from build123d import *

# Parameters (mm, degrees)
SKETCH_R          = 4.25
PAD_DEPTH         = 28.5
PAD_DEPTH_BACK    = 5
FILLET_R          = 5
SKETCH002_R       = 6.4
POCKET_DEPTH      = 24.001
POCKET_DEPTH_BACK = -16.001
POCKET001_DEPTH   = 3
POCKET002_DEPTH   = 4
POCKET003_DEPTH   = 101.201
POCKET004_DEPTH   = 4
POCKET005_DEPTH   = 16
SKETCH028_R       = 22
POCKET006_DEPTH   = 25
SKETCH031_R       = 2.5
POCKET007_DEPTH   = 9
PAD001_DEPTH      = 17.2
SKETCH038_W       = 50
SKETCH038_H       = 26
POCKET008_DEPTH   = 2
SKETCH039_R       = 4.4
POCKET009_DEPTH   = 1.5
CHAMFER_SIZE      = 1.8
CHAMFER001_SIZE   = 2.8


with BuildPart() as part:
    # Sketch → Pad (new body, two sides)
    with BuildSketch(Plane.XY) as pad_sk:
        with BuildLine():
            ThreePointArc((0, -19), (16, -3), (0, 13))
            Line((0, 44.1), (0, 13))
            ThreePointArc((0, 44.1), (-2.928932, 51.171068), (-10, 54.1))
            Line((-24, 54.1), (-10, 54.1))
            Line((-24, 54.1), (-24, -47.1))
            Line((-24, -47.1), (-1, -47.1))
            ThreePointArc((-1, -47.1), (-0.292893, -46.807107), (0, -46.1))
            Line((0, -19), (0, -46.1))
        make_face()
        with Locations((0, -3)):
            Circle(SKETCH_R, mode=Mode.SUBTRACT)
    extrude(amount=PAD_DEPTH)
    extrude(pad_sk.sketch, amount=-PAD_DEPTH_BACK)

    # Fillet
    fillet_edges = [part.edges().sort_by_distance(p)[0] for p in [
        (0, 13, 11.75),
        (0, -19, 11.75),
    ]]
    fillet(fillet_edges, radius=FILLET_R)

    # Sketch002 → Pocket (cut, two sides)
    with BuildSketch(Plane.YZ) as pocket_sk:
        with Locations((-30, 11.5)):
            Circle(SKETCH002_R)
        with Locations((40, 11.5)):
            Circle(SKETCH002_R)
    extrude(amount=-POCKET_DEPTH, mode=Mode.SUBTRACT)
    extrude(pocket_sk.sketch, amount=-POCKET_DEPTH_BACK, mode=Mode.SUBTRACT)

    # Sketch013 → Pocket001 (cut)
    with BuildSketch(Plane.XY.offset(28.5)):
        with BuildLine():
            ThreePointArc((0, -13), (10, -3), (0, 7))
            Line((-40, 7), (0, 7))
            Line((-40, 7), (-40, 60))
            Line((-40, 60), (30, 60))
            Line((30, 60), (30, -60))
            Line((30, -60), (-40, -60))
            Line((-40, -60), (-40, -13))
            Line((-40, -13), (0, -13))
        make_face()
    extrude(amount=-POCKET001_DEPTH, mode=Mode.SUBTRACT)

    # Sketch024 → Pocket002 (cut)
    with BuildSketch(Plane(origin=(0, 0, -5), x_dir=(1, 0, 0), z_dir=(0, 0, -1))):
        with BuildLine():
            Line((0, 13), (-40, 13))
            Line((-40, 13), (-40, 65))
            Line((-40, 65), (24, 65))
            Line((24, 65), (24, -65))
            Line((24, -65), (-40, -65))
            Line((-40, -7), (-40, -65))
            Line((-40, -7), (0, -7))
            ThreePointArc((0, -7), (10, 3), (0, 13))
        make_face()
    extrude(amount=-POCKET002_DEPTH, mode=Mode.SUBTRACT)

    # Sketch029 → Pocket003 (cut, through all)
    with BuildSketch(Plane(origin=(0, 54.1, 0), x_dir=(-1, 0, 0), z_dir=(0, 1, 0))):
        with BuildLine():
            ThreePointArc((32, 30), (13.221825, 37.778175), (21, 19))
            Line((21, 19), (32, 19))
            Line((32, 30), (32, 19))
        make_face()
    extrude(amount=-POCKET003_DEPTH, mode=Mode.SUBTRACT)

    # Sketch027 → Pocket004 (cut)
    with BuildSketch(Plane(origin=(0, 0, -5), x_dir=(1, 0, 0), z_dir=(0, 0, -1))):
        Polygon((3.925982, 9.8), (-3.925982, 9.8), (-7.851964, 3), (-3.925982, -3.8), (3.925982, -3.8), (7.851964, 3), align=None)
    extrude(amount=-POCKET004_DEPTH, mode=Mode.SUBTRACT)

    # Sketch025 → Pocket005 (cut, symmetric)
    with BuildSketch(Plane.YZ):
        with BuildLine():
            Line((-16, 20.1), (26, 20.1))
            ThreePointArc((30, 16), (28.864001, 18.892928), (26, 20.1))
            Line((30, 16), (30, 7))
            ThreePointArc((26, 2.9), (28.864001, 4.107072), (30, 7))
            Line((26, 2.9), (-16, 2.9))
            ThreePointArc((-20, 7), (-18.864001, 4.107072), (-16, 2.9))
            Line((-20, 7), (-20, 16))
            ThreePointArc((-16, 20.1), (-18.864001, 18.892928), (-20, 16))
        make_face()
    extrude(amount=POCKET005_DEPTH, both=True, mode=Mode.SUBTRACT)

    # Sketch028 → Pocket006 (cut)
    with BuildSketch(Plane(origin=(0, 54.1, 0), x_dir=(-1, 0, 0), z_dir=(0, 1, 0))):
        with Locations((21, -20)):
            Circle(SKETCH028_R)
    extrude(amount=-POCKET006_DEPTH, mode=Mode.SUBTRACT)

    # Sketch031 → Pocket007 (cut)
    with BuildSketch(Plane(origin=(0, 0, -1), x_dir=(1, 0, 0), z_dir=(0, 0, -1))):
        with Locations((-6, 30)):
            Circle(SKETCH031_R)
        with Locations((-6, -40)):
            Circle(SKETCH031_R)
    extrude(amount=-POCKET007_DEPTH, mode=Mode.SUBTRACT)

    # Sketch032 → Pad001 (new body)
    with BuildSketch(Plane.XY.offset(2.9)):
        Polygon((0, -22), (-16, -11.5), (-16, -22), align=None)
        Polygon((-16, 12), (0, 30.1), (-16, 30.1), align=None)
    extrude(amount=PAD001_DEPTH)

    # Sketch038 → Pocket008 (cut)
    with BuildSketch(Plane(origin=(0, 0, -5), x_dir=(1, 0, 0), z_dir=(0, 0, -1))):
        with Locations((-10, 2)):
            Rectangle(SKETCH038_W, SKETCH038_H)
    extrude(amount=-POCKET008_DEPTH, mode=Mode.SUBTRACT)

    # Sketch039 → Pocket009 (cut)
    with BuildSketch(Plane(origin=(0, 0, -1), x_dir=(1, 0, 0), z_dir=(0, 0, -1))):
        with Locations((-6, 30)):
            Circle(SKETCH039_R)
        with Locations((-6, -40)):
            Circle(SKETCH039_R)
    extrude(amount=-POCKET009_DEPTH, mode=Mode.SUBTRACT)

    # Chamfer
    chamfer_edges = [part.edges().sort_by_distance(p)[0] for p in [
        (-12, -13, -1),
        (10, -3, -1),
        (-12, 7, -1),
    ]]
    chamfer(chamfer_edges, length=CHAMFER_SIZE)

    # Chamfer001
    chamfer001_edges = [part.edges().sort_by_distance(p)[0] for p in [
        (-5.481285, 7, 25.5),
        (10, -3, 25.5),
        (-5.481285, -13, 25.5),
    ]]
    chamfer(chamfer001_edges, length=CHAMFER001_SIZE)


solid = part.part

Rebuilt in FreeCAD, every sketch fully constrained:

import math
import FreeCAD as App
import Part
import Sketcher
Q = App.Units.Quantity


def edges_at(feature, points):
    """Names of the edges that pass closest to the given points."""
    edges = feature.Shape.Edges
    near = lambda p: min(range(len(edges)), key=lambda i: edges[i].distToShape(Part.Vertex(*p))[0])
    return sorted({f"Edge{near(p) + 1}" for p in points})


def add_polygon(sketch, points):
    """Adds a closed chain of lines whose ends are joined by coincident constraints."""
    first, n = sketch.GeometryCount, len(points)
    for a, b in zip(points, points[1:] + points[:1]):
        sketch.addGeometry(Part.LineSegment(App.Vector(*a, 0), App.Vector(*b, 0)), False)
    for i in range(n):
        sketch.addConstraint(Sketcher.Constraint("Coincident", first + i, 2, first + (i + 1) % n, 1))

doc = App.newDocument("Part")
body = doc.addObject("PartDesign::Body", "Body")

sketch1 = body.newObject("Sketcher::SketchObject", "Sketch")
sketch1.AttachmentSupport = (doc.getObject("XY_Plane"), [""])
sketch1.MapMode = "FlatFace"
sketch1.addGeometry([
    Part.ArcOfCircle(Part.Circle(App.Vector(0, -3, 0), App.Vector(0, 0, 1), 16), math.radians(-90), math.radians(90)),
    Part.LineSegment(App.Vector(0, 13, 0), App.Vector(0, 44.1, 0)),
    Part.ArcOfCircle(Part.Circle(App.Vector(-10, 44.1, 0), App.Vector(0, 0, 1), 10), math.radians(0), math.radians(90)),
    Part.LineSegment(App.Vector(-10, 54.1, 0), App.Vector(-24, 54.1, 0)),
    Part.LineSegment(App.Vector(-24, 54.1, 0), App.Vector(-24, -47.1, 0)),
    Part.LineSegment(App.Vector(-24, -47.1, 0), App.Vector(-1, -47.1, 0)),
    Part.ArcOfCircle(Part.Circle(App.Vector(-1, -46.1, 0), App.Vector(0, 0, 1), 1), math.radians(-90), math.radians(0)),
    Part.LineSegment(App.Vector(0, -46.1, 0), App.Vector(0, -19, 0)),
    Part.Circle(App.Vector(0, -3, 0), App.Vector(0, 0, 1), 4.2),
], False)
sketch1.addConstraint([
    Sketcher.Constraint("Coincident", 0, 2, 1, 1),
    Sketcher.Constraint("Tangent", 1, 2, 2, 1),
    Sketcher.Constraint("Tangent", 2, 2, 3, 1),
    Sketcher.Constraint("Coincident", 3, 2, 4, 1),
    Sketcher.Constraint("Coincident", 4, 2, 5, 1),
    Sketcher.Constraint("Tangent", 5, 2, 6, 1),
    Sketcher.Constraint("Tangent", 6, 2, 7, 1),
    Sketcher.Constraint("Coincident", 7, 2, 0, 1),
    Sketcher.Constraint("Vertical", 1),
    Sketcher.Constraint("Horizontal", 3),
    Sketcher.Constraint("Vertical", 4),
    Sketcher.Constraint("Horizontal", 5),
    Sketcher.Constraint("Vertical", 7),
    Sketcher.Constraint("Coincident", 8, 3, 0, 3),
    Sketcher.Constraint("PointOnObject", 0, 3, -2),
    Sketcher.Constraint("PointOnObject", 0, 2, -2),
    Sketcher.Constraint("PointOnObject", 6, 2, -2),
    Sketcher.Constraint("Radius", 0, Q("16 mm")),
    Sketcher.Constraint("Radius", 2, Q("9.999999 mm")),
    Sketcher.Constraint("Radius", 6, Q("0.999999 mm")),
    Sketcher.Constraint("Diameter", 8, Q("8.5 mm")),
    Sketcher.Constraint("DistanceX", 3, 2, 3, 1, Q("14 mm")),
    Sketcher.Constraint("DistanceY", 1, 1, 1, 2, Q("31.1 mm")),
    Sketcher.Constraint("DistanceY", 4, 2, 4, 1, Q("101.2 mm")),
    Sketcher.Constraint("DistanceY", 0, 3, -1, 1, Q("3 mm")),
])
pad1 = body.newObject("PartDesign::Pad", "Pad")
pad1.Profile = sketch1
pad1.Type = "TwoLengths"
pad1.Length = 28.5
pad1.Length2 = 5
doc.recompute()

fillet = body.newObject("PartDesign::Fillet", "Fillet")
fillet.Base = (pad1, edges_at(pad1, [(0, 13, 11.75), (0, -19, 11.75)]))
fillet.Radius = 5

sketch2 = body.newObject("Sketcher::SketchObject", "Sketch001")
sketch2.AttachmentSupport = (doc.getObject("YZ_Plane"), [""])
sketch2.MapMode = "FlatFace"
sketch2.addGeometry([
    Part.Circle(App.Vector(-30, 12, 0), App.Vector(0, 0, 1), 6),
    Part.Circle(App.Vector(40, 12, 0), App.Vector(0, 0, 1), 6),
], False)
sketch2.addConstraint([
    Sketcher.Constraint("Equal", 0, 1),
    Sketcher.Constraint("Horizontal", 0, 3, 1, 3),
    Sketcher.Constraint("Diameter", 0, Q("12.8 mm")),
    Sketcher.Constraint("DistanceX", 0, 3, -1, 1, Q("30 mm")),
    Sketcher.Constraint("DistanceX", -1, 1, 1, 3, Q("40 mm")),
    Sketcher.Constraint("DistanceY", -1, 1, 0, 3, Q("11.5 mm")),
])
pocket1 = body.newObject("PartDesign::Pocket", "Pocket")
pocket1.Profile = sketch2
pocket1.Type = "ThroughAll"
pocket1.Midplane = True

sketch3 = body.newObject("Sketcher::SketchObject", "Sketch002")
sketch3.AttachmentSupport = (doc.getObject("XY_Plane"), [""])
sketch3.MapMode = "FlatFace"
sketch3.AttachmentOffset = App.Placement(App.Vector(0, 0, 28.5), App.Rotation())
sketch3.addGeometry([
    Part.ArcOfCircle(Part.Circle(App.Vector(0, -3, 0), App.Vector(0, 0, 1), 10), math.radians(-90), math.radians(90)),
    Part.LineSegment(App.Vector(0, -13, 0), App.Vector(-40, -13, 0)),
    Part.LineSegment(App.Vector(-40, -13, 0), App.Vector(-40, -60, 0)),
    Part.LineSegment(App.Vector(-40, -60, 0), App.Vector(30, -60, 0)),
    Part.LineSegment(App.Vector(30, -60, 0), App.Vector(30, 60, 0)),
    Part.LineSegment(App.Vector(30, 60, 0), App.Vector(-40, 60, 0)),
    Part.LineSegment(App.Vector(-40, 60, 0), App.Vector(-40, 7, 0)),
    Part.LineSegment(App.Vector(-40, 7, 0), App.Vector(0, 7, 0)),
], False)
sketch3.addConstraint([
    Sketcher.Constraint("Tangent", 0, 1, 1, 1),
    Sketcher.Constraint("Coincident", 1, 2, 2, 1),
    Sketcher.Constraint("Coincident", 2, 2, 3, 1),
    Sketcher.Constraint("Coincident", 3, 2, 4, 1),
    Sketcher.Constraint("Coincident", 4, 2, 5, 1),
    Sketcher.Constraint("Coincident", 5, 2, 6, 1),
    Sketcher.Constraint("Coincident", 6, 2, 7, 1),
    Sketcher.Constraint("Tangent", 7, 2, 0, 2),
    Sketcher.Constraint("Horizontal", 1),
    Sketcher.Constraint("Vertical", 2),
    Sketcher.Constraint("Horizontal", 3),
    Sketcher.Constraint("Vertical", 4),
    Sketcher.Constraint("Horizontal", 5),
    Sketcher.Constraint("Vertical", 6),
    Sketcher.Constraint("Horizontal", 7),
    Sketcher.Constraint("Symmetric", 2, 2, 5, 2, -1),
    Sketcher.Constraint("PointOnObject", 0, 3, -2),
    Sketcher.Constraint("Radius", 0, Q("10 mm")),
    Sketcher.Constraint("DistanceX", 1, 2, 1, 1, Q("40 mm")),
    Sketcher.Constraint("DistanceX", 3, 1, 3, 2, Q("70 mm")),
    Sketcher.Constraint("DistanceY", 2, 2, 2, 1, Q("47 mm")),
    Sketcher.Constraint("DistanceY", 4, 1, 4, 2, Q("120 mm")),
])
pocket2 = body.newObject("PartDesign::Pocket", "Pocket001")
pocket2.Profile = sketch3
pocket2.Length = 3

sketch4 = body.newObject("Sketcher::SketchObject", "Sketch003")
sketch4.AttachmentSupport = (doc.getObject("XY_Plane"), [""])
sketch4.MapMode = "FlatFace"
sketch4.AttachmentOffset = App.Placement(App.Vector(0, 0, -5), App.Rotation())
sketch4.addGeometry([
    Part.LineSegment(App.Vector(-40, -13, 0), App.Vector(0, -13, 0)),
    Part.ArcOfCircle(Part.Circle(App.Vector(0, -3, 0), App.Vector(0, 0, 1), 10), math.radians(-90), math.radians(90)),
    Part.LineSegment(App.Vector(0, 7, 0), App.Vector(-40, 7, 0)),
    Part.LineSegment(App.Vector(-40, 7, 0), App.Vector(-40, 65, 0)),
    Part.LineSegment(App.Vector(-40, 65, 0), App.Vector(24, 65, 0)),
    Part.LineSegment(App.Vector(24, 65, 0), App.Vector(24, -65, 0)),
    Part.LineSegment(App.Vector(24, -65, 0), App.Vector(-40, -65, 0)),
    Part.LineSegment(App.Vector(-40, -65, 0), App.Vector(-40, -13, 0)),
], False)
sketch4.addConstraint([
    Sketcher.Constraint("Tangent", 0, 2, 1, 1),
    Sketcher.Constraint("Tangent", 1, 2, 2, 1),
    Sketcher.Constraint("Coincident", 2, 2, 3, 1),
    Sketcher.Constraint("Coincident", 3, 2, 4, 1),
    Sketcher.Constraint("Coincident", 4, 2, 5, 1),
    Sketcher.Constraint("Coincident", 5, 2, 6, 1),
    Sketcher.Constraint("Coincident", 6, 2, 7, 1),
    Sketcher.Constraint("Coincident", 7, 2, 0, 1),
    Sketcher.Constraint("Horizontal", 0),
    Sketcher.Constraint("Horizontal", 2),
    Sketcher.Constraint("Vertical", 3),
    Sketcher.Constraint("Horizontal", 4),
    Sketcher.Constraint("Vertical", 5),
    Sketcher.Constraint("Horizontal", 6),
    Sketcher.Constraint("Vertical", 7),
    Sketcher.Constraint("Symmetric", 3, 2, 6, 2, -1),
    Sketcher.Constraint("PointOnObject", 1, 3, -2),
    Sketcher.Constraint("Radius", 1, Q("10 mm")),
    Sketcher.Constraint("DistanceX", 0, 1, 0, 2, Q("40 mm")),
    Sketcher.Constraint("DistanceX", 4, 1, 4, 2, Q("64 mm")),
    Sketcher.Constraint("DistanceY", 3, 1, 3, 2, Q("58 mm")),
    Sketcher.Constraint("DistanceY", 5, 2, 5, 1, Q("130 mm")),
])
pocket3 = body.newObject("PartDesign::Pocket", "Pocket002")
pocket3.Profile = sketch4
pocket3.Length = 4
pocket3.Reversed = True

sketch5 = body.newObject("Sketcher::SketchObject", "Sketch004")
sketch5.AttachmentSupport = (doc.getObject("XZ_Plane"), [""])
sketch5.MapMode = "FlatFace"
sketch5.AttachmentOffset = App.Placement(App.Vector(0, 0, -54.1), App.Rotation())
sketch5.addGeometry([
    Part.ArcOfCircle(Part.Circle(App.Vector(-21, 30, 0), App.Vector(0, 0, 1), 11), math.radians(-90), math.radians(180)),
    Part.LineSegment(App.Vector(-21, 19, 0), App.Vector(-32, 19, 0)),
    Part.LineSegment(App.Vector(-32, 19, 0), App.Vector(-32, 30, 0)),
], False)
sketch5.addConstraint([
    Sketcher.Constraint("Tangent", 0, 1, 1, 1),
    Sketcher.Constraint("Coincident", 1, 2, 2, 1),
    Sketcher.Constraint("Tangent", 2, 2, 0, 2),
    Sketcher.Constraint("Horizontal", 1),
    Sketcher.Constraint("Vertical", 2),
    Sketcher.Constraint("Radius", 0, Q("11 mm")),
    Sketcher.Constraint("DistanceX", 0, 3, -1, 1, Q("21 mm")),
    Sketcher.Constraint("DistanceY", -1, 1, 0, 3, Q("30 mm")),
])
pocket4 = body.newObject("PartDesign::Pocket", "Pocket003")
pocket4.Profile = sketch5
pocket4.Type = "ThroughAll"
pocket4.Reversed = True

sketch6 = body.newObject("Sketcher::SketchObject", "Sketch005")
sketch6.AttachmentSupport = (doc.getObject("XY_Plane"), [""])
sketch6.MapMode = "FlatFace"
sketch6.AttachmentOffset = App.Placement(App.Vector(0, 0, -5), App.Rotation())
add_polygon(sketch6, [(4, -10), (-4, -10), (-8, -3), (-4, 4), (4, 4), (8, -3)])
sketch6.addConstraint([
    Sketcher.Constraint("Horizontal", 0),
    Sketcher.Constraint("Horizontal", 3),
    Sketcher.Constraint("Symmetric", 1, 2, 4, 2, -2),
    Sketcher.Constraint("Parallel", 1, 4),
    Sketcher.Constraint("Parallel", 2, 5),
    Sketcher.Constraint("Vertical", 0, 2, 2, 2),
    Sketcher.Constraint("Vertical", 3, 2, 5, 2),
    Sketcher.Constraint("Angle", 1, Q("120.000001 deg")),
    Sketcher.Constraint("DistanceY", 1, 2, -1, 1, Q("3 mm")),
    Sketcher.Constraint("DistanceY", 0, 2, -1, 1, Q("9.8 mm")),
    Sketcher.Constraint("DistanceX", 0, 2, 0, 1, Q("7.851964 mm")),
])
pocket5 = body.newObject("PartDesign::Pocket", "Pocket004")
pocket5.Profile = sketch6
pocket5.Length = 4
pocket5.Reversed = True

sketch7 = body.newObject("Sketcher::SketchObject", "Sketch006")
sketch7.AttachmentSupport = (doc.getObject("YZ_Plane"), [""])
sketch7.MapMode = "FlatFace"
sketch7.addGeometry([
    Part.LineSegment(App.Vector(26, 20.1, 0), App.Vector(-16, 20.1, 0)),
    Part.ArcOfCircle(Part.Circle(App.Vector(-16, 16.1, 0), App.Vector(0, 0, 1), 4), math.radians(90), math.radians(181)),
    Part.LineSegment(App.Vector(-20, 16, 0), App.Vector(-20, 7, 0)),
    Part.ArcOfCircle(Part.Circle(App.Vector(-16, 6.9, 0), App.Vector(0, 0, 1), 4), math.radians(179), math.radians(270)),
    Part.LineSegment(App.Vector(-16, 2.9, 0), App.Vector(26, 2.9, 0)),
    Part.ArcOfCircle(Part.Circle(App.Vector(26, 6.9, 0), App.Vector(0, 0, 1), 4), math.radians(-90), math.radians(1)),
    Part.LineSegment(App.Vector(30, 7, 0), App.Vector(30, 16, 0)),
    Part.ArcOfCircle(Part.Circle(App.Vector(26, 16.1, 0), App.Vector(0, 0, 1), 4), math.radians(-1), math.radians(90)),
], False)
sketch7.addConstraint([
    Sketcher.Constraint("Tangent", 0, 2, 1, 1),
    Sketcher.Constraint("Coincident", 1, 2, 2, 1),
    Sketcher.Constraint("Coincident", 2, 2, 3, 1),
    Sketcher.Constraint("Tangent", 3, 2, 4, 1),
    Sketcher.Constraint("Tangent", 4, 2, 5, 1),
    Sketcher.Constraint("Coincident", 5, 2, 6, 1),
    Sketcher.Constraint("Coincident", 6, 2, 7, 1),
    Sketcher.Constraint("Tangent", 7, 2, 0, 1),
    Sketcher.Constraint("Horizontal", 0),
    Sketcher.Constraint("Vertical", 2),
    Sketcher.Constraint("Horizontal", 4),
    Sketcher.Constraint("Vertical", 6),
    Sketcher.Constraint("Equal", 1, 3),
    Sketcher.Constraint("Equal", 3, 5),
    Sketcher.Constraint("Equal", 5, 7),
    Sketcher.Constraint("Horizontal", 2, 2, 5, 2),
    Sketcher.Constraint("Horizontal", 1, 2, 6, 2),
    Sketcher.Constraint("Vertical", 1, 3, 3, 3),
    Sketcher.Constraint("DistanceX", 0, 2, 0, 1, Q("42 mm")),
    Sketcher.Constraint("DistanceY", 2, 2, 2, 1, Q("9 mm")),
    Sketcher.Constraint("DistanceX", 1, 3, -1, 1, Q("16.000001 mm")),
    Sketcher.Constraint("DistanceX", 1, 2, -1, 1, Q("20 mm")),
    Sketcher.Constraint("DistanceY", -1, 1, 1, 2, Q("16 mm")),
    Sketcher.Constraint("DistanceY", -1, 1, 0, 2, Q("20.1 mm")),
])
pocket6 = body.newObject("PartDesign::Pocket", "Pocket005")
pocket6.Profile = sketch7
pocket6.Length = 32
pocket6.Midplane = True

sketch8 = body.newObject("Sketcher::SketchObject", "Sketch007")
sketch8.AttachmentSupport = (doc.getObject("XZ_Plane"), [""])
sketch8.MapMode = "FlatFace"
sketch8.AttachmentOffset = App.Placement(App.Vector(0, 0, -54.1), App.Rotation())
sketch8.addGeometry(Part.Circle(App.Vector(-21, -20, 0), App.Vector(0, 0, 1), 22), False)
sketch8.addConstraint([
    Sketcher.Constraint("Diameter", 0, Q("44 mm")),
    Sketcher.Constraint("DistanceX", 0, 3, -1, 1, Q("21 mm")),
    Sketcher.Constraint("DistanceY", 0, 3, -1, 1, Q("20 mm")),
])
pocket7 = body.newObject("PartDesign::Pocket", "Pocket006")
pocket7.Profile = sketch8
pocket7.Length = 25
pocket7.Reversed = True

sketch9 = body.newObject("Sketcher::SketchObject", "Sketch008")
sketch9.AttachmentSupport = (doc.getObject("XY_Plane"), [""])
sketch9.MapMode = "FlatFace"
sketch9.AttachmentOffset = App.Placement(App.Vector(0, 0, -1), App.Rotation())
sketch9.addGeometry([
    Part.Circle(App.Vector(-6, -30, 0), App.Vector(0, 0, 1), 2.5),
    Part.Circle(App.Vector(-6, 40, 0), App.Vector(0, 0, 1), 2.5),
], False)
sketch9.addConstraint([
    Sketcher.Constraint("Equal", 0, 1),
    Sketcher.Constraint("Vertical", 0, 3, 1, 3),
    Sketcher.Constraint("Diameter", 0, Q("5 mm")),
    Sketcher.Constraint("DistanceX", 0, 3, -1, 1, Q("6 mm")),
    Sketcher.Constraint("DistanceY", 0, 3, -1, 1, Q("30 mm")),
    Sketcher.Constraint("DistanceY", -1, 1, 1, 3, Q("40 mm")),
])
pocket8 = body.newObject("PartDesign::Pocket", "Pocket007")
pocket8.Profile = sketch9
pocket8.Length = 9
pocket8.Reversed = True

sketch10 = body.newObject("Sketcher::SketchObject", "Sketch009")
sketch10.AttachmentSupport = (doc.getObject("XY_Plane"), [""])
sketch10.MapMode = "FlatFace"
sketch10.AttachmentOffset = App.Placement(App.Vector(0, 0, 2.9), App.Rotation())
add_polygon(sketch10, [(0, -22), (-16, -12), (-16, -22)])
add_polygon(sketch10, [(-16, 12), (0, 30), (-16, 30)])
sketch10.addConstraint([
    Sketcher.Constraint("Vertical", 1),
    Sketcher.Constraint("Horizontal", 2),
    Sketcher.Constraint("Horizontal", 4),
    Sketcher.Constraint("Vertical", 5),
    Sketcher.Constraint("PointOnObject", 2, 2, -2),
    Sketcher.Constraint("PointOnObject", 3, 2, -2),
    Sketcher.Constraint("Vertical", 1, 2, 4, 2),
    Sketcher.Constraint("DistanceX", 2, 1, 2, 2, Q("16 mm")),
    Sketcher.Constraint("DistanceY", 1, 2, 1, 1, Q("10.5 mm")),
    Sketcher.Constraint("DistanceY", 5, 2, 5, 1, Q("18.1 mm")),
    Sketcher.Constraint("DistanceY", 1, 2, -1, 1, Q("22 mm")),
    Sketcher.Constraint("DistanceY", -1, 1, 5, 2, Q("12 mm")),
])
pad2 = body.newObject("PartDesign::Pad", "Pad001")
pad2.Profile = sketch10
pad2.Length = 17.2

sketch11 = body.newObject("Sketcher::SketchObject", "Sketch010")
sketch11.AttachmentSupport = (doc.getObject("XY_Plane"), [""])
sketch11.MapMode = "FlatFace"
sketch11.AttachmentOffset = App.Placement(App.Vector(0, 0, -5), App.Rotation())
add_polygon(sketch11, [(-35, -15), (-35, 11), (15, 11), (15, -15)])
sketch11.addConstraint([
    Sketcher.Constraint("Vertical", 0),
    Sketcher.Constraint("Horizontal", 1),
    Sketcher.Constraint("Vertical", 2),
    Sketcher.Constraint("Horizontal", 3),
    Sketcher.Constraint("DistanceX", 1, 1, 1, 2, Q("50 mm")),
    Sketcher.Constraint("DistanceY", 0, 1, 0, 2, Q("26 mm")),
    Sketcher.Constraint("DistanceX", 0, 2, -1, 1, Q("35 mm")),
    Sketcher.Constraint("DistanceY", -1, 1, 0, 2, Q("11 mm")),
])
pocket9 = body.newObject("PartDesign::Pocket", "Pocket008")
pocket9.Profile = sketch11
pocket9.Length = 2
pocket9.Reversed = True

sketch12 = body.newObject("Sketcher::SketchObject", "Sketch011")
sketch12.AttachmentSupport = (doc.getObject("XY_Plane"), [""])
sketch12.MapMode = "FlatFace"
sketch12.AttachmentOffset = App.Placement(App.Vector(0, 0, -1), App.Rotation())
sketch12.addGeometry([
    Part.Circle(App.Vector(-6, -30, 0), App.Vector(0, 0, 1), 4.4),
    Part.Circle(App.Vector(-6, 40, 0), App.Vector(0, 0, 1), 4.4),
], False)
sketch12.addConstraint([
    Sketcher.Constraint("Equal", 0, 1),
    Sketcher.Constraint("Vertical", 0, 3, 1, 3),
    Sketcher.Constraint("Diameter", 0, Q("8.8 mm")),
    Sketcher.Constraint("DistanceX", 0, 3, -1, 1, Q("6 mm")),
    Sketcher.Constraint("DistanceY", 0, 3, -1, 1, Q("30 mm")),
    Sketcher.Constraint("DistanceY", -1, 1, 1, 3, Q("40 mm")),
])
pocket10 = body.newObject("PartDesign::Pocket", "Pocket009")
pocket10.Profile = sketch12
pocket10.Length = 1.5
pocket10.Reversed = True
doc.recompute()

chamfer = body.newObject("PartDesign::Chamfer", "Chamfer")
chamfer.Base = (pocket10, edges_at(pocket10, [(-12, -13, -1), (10, -3, -1), (-12, 7, -1)]))
chamfer.Size = 1.8
doc.recompute()

chamfer2 = body.newObject("PartDesign::Chamfer", "Chamfer001")
chamfer2.Base = (chamfer, edges_at(chamfer, [(-5.481, 7, 25.5), (10, -3, 25.5), (-5.481, -13, 25.5)]))
chamfer2.Size = 2.8

doc.recompute()
